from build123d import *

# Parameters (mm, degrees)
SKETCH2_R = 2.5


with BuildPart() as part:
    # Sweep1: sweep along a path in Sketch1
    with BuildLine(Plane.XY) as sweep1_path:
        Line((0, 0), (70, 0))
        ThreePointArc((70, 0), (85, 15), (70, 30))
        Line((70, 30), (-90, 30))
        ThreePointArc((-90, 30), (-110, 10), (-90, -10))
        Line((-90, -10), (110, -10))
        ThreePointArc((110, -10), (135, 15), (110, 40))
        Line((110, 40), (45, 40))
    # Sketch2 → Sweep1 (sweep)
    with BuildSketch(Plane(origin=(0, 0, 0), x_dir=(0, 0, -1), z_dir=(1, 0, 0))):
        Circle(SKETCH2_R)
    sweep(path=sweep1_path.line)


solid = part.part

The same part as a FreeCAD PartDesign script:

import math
import FreeCAD as App
import Part
import Sketcher
from FreeCAD import Vector
Q = App.Units.Quantity

doc = App.newDocument("Part")
body = doc.addObject("PartDesign::Body", "Body")

# Sketch on YZ plane
sketch1 = body.newObject("Sketcher::SketchObject", "Sketch")
sketch1.AttachmentSupport = (doc.getObject("YZ_Plane"), [""])
sketch1.MapMode = "FlatFace"
sketch1.addGeometry(Part.Circle(Vector(0, 0, 0), Vector(0, 0, 1), 2.5), False)
sketch1.addConstraint(Sketcher.Constraint("Coincident", 0, 3, -1, 1))
sketch1.addConstraint(Sketcher.Constraint("Diameter", 0, Q("5 mm")))

# Sketch on XY plane
sketch2 = body.newObject("Sketcher::SketchObject", "Sketch001")
sketch2.AttachmentSupport = (doc.getObject("XY_Plane"), [""])
sketch2.MapMode = "FlatFace"
sketch2.addGeometry(Part.LineSegment(Vector(0, 0, 0), Vector(70, 0, 0)), False)
sketch2.addGeometry(Part.ArcOfCircle(Part.Circle(Vector(70, 15, 0), Vector(0, 0, 1), 15), math.radians(-90), math.radians(90)), False)
sketch2.addGeometry(Part.LineSegment(Vector(70, 30, 0), Vector(-90, 30, 0)), False)
sketch2.addGeometry(Part.ArcOfCircle(Part.Circle(Vector(-90, 10, 0), Vector(0, 0, 1), 20), math.radians(90), math.radians(270)), False)
sketch2.addGeometry(Part.LineSegment(Vector(-90, -10, 0), Vector(110, -10, 0)), False)
sketch2.addGeometry(Part.ArcOfCircle(Part.Circle(Vector(110, 15, 0), Vector(0, 0, 1), 25), math.radians(-90), math.radians(90)), False)
sketch2.addGeometry(Part.LineSegment(Vector(110, 40, 0), Vector(45, 40, 0)), False)
sketch2.addConstraint(Sketcher.Constraint("Tangent", 0, 2, 1, 1))
sketch2.addConstraint(Sketcher.Constraint("Tangent", 1, 2, 2, 1))
sketch2.addConstraint(Sketcher.Constraint("Tangent", 2, 2, 3, 1))
sketch2.addConstraint(Sketcher.Constraint("Tangent", 3, 2, 4, 1))
sketch2.addConstraint(Sketcher.Constraint("Tangent", 4, 2, 5, 1))
sketch2.addConstraint(Sketcher.Constraint("Tangent", 5, 2, 6, 1))
sketch2.addConstraint(Sketcher.Constraint("Horizontal", 0))
sketch2.addConstraint(Sketcher.Constraint("Horizontal", 2))
sketch2.addConstraint(Sketcher.Constraint("Horizontal", 4))
sketch2.addConstraint(Sketcher.Constraint("Horizontal", 6))
sketch2.addConstraint(Sketcher.Constraint("Coincident", 0, 1, -1, 1))
sketch2.addConstraint(Sketcher.Constraint("Horizontal", 1, 3, 5, 3))
sketch2.addConstraint(Sketcher.Constraint("Radius", 1, Q("15 mm")))
sketch2.addConstraint(Sketcher.Constraint("Radius", 3, Q("20 mm")))
sketch2.addConstraint(Sketcher.Constraint("DistanceX", 0, 1, 0, 2, Q("70 mm")))
sketch2.addConstraint(Sketcher.Constraint("DistanceX", 2, 2, 2, 1, Q("160 mm")))
sketch2.addConstraint(Sketcher.Constraint("DistanceX", 4, 1, 4, 2, Q("200 mm")))
sketch2.addConstraint(Sketcher.Constraint("DistanceX", 6, 2, 6, 1, Q("65 mm")))
doc.recompute()

additivepipe = body.newObject("PartDesign::AdditivePipe", "AdditivePipe")
additivepipe.Profile = sketch1
additivepipe.Spine = (sketch2, ["Edge1", "Edge2", "Edge3", "Edge4", "Edge5", "Edge6", "Edge7"])

doc.recompute()
